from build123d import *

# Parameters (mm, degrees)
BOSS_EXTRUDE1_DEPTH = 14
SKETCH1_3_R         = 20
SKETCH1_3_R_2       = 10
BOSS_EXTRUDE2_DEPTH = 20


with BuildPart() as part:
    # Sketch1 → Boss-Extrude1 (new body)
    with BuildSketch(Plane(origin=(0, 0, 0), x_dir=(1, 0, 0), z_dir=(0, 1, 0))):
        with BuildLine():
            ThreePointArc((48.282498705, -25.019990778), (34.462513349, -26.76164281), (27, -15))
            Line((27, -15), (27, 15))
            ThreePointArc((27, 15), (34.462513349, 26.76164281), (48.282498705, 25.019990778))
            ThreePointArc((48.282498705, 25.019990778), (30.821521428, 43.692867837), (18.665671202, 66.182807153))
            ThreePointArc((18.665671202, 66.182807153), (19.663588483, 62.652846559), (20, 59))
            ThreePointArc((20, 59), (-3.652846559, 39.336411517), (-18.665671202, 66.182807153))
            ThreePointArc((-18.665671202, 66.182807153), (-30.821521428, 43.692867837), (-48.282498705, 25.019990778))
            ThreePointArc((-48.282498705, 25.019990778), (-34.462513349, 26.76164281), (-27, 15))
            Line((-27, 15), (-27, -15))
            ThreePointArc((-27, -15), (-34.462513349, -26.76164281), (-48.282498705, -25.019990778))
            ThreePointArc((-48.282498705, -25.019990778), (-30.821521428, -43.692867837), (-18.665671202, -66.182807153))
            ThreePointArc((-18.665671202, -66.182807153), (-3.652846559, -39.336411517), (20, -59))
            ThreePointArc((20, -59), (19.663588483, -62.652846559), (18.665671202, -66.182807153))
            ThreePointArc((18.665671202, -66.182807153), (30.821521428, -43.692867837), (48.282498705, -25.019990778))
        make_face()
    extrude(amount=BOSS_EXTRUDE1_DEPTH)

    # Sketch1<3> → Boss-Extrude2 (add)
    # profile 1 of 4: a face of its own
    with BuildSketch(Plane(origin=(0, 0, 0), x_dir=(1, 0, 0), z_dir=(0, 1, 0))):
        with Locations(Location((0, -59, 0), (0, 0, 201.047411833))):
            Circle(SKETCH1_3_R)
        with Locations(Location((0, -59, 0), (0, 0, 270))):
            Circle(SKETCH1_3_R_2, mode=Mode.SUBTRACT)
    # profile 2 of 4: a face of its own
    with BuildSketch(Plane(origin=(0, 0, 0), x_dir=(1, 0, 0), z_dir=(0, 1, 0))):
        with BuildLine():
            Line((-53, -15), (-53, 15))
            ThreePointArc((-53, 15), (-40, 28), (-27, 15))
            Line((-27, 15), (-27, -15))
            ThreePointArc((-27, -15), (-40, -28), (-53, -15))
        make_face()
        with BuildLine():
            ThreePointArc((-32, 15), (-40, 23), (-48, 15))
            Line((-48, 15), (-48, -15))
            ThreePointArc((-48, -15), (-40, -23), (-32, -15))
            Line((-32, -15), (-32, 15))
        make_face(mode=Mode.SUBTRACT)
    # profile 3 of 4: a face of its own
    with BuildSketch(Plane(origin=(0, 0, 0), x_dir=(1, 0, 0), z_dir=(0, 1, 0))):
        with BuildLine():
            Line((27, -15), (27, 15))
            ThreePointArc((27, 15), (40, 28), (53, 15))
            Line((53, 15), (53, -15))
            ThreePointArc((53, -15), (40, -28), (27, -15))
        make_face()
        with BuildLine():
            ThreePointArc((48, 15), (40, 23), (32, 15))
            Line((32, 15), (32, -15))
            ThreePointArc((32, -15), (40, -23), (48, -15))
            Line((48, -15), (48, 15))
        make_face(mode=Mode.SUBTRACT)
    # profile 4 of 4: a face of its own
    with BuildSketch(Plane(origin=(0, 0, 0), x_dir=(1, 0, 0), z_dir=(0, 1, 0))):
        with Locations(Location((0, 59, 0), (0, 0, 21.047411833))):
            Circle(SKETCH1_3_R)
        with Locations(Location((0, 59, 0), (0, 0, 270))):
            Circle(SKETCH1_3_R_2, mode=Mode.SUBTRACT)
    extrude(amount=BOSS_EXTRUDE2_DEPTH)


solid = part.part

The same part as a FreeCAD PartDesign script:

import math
import FreeCAD as App
import Part
import Sketcher
from FreeCAD import Vector

doc = App.newDocument("Part")
body = doc.addObject("PartDesign::Body", "Body")

# Sketch on XZ plane
sketch1 = doc.addObject("Sketcher::SketchObject", "Sketch")
body.addObject(sketch1)
sketch1.AttachmentSupport = (doc.XZ_Plane, [""])
sketch1.MapMode = "FlatFace"
sketch1.addGeometry([
    Part.ArcOfCircle(Part.Circle(Vector(40, 15, 0), Vector(0, 0, 1), 13), math.radians(50), math.radians(180)),  # 0
    Part.LineSegment(Vector(27, 15, 0), Vector(27, -15, 0)),  # 1
    Part.ArcOfCircle(Part.Circle(Vector(40, -15, 0), Vector(0, 0, 1), 13), math.radians(180), math.radians(310)),  # 2
    Part.ArcOfCircle(Part.Circle(Vector(112, -102, 0), Vector(0, 0, 1), 100), math.radians(130), math.radians(159)),  # 3
    Part.ArcOfCircle(Part.Circle(Vector(0, -59, 0), Vector(0, 0, 1), 20), math.radians(-21), math.radians(0)),  # 4
    Part.ArcOfCircle(Part.Circle(Vector(0, -59, 0), Vector(0, 0, 1), 20), math.radians(0), math.radians(201)),  # 5
    Part.ArcOfCircle(Part.Circle(Vector(-112, -102, 0), Vector(0, 0, 1), 100), math.radians(21), math.radians(50)),  # 6
    Part.ArcOfCircle(Part.Circle(Vector(-40, -15, 0), Vector(0, 0, 1), 13), math.radians(-130), math.radians(0)),  # 7
    Part.LineSegment(Vector(-27, -15, 0), Vector(-27, 15, 0)),  # 8
    Part.ArcOfCircle(Part.Circle(Vector(-40, 15, 0), Vector(0, 0, 1), 13), math.radians(0), math.radians(130)),  # 9
    Part.ArcOfCircle(Part.Circle(Vector(-112, 102, 0), Vector(0, 0, 1), 100), math.radians(-50), math.radians(-21)),  # 10
    Part.ArcOfCircle(Part.Circle(Vector(0, 59, 0), Vector(0, 0, 1), 20), math.radians(159), math.radians(360)),  # 11
    Part.ArcOfCircle(Part.Circle(Vector(0, 59, 0), Vector(0, 0, 1), 20), math.radians(0), math.radians(21)),  # 12
    Part.ArcOfCircle(Part.Circle(Vector(112, 102, 0), Vector(0, 0, 1), 100), math.radians(-159), math.radians(-130)),  # 13
], False)
sketch1.addConstraint([
    Sketcher.Constraint("Tangent", 0, 2, 1, 1),
    Sketcher.Constraint("Tangent", 1, 2, 2, 1),
    Sketcher.Constraint("Tangent", 2, 2, 3, 1),
    Sketcher.Constraint("Tangent", 3, 2, 4, 1),
    Sketcher.Constraint("Tangent", 4, 2, 5, 1),
    Sketcher.Constraint("Tangent", 5, 2, 6, 1),
    Sketcher.Constraint("Tangent", 6, 2, 7, 1),
    Sketcher.Constraint("Tangent", 7, 2, 8, 1),
    Sketcher.Constraint("Tangent", 8, 2, 9, 1),
    Sketcher.Constraint("Tangent", 9, 2, 10, 1),
    Sketcher.Constraint("Tangent", 10, 2, 11, 1),
    Sketcher.Constraint("Tangent", 11, 2, 12, 1),
    Sketcher.Constraint("Tangent", 12, 2, 13, 1),
    Sketcher.Constraint("Tangent", 13, 2, 0, 1),
    Sketcher.Constraint("Vertical", 1),
    Sketcher.Constraint("Vertical", 8),
    Sketcher.Constraint("Equal", 0, 2),
    Sketcher.Constraint("Equal", 4, 5),
    Sketcher.Constraint("Equal", 3, 6),
    Sketcher.Constraint("Equal", 2, 7),
    Sketcher.Constraint("Equal", 7, 9),
    Sketcher.Constraint("Equal", 6, 10),
    Sketcher.Constraint("Equal", 5, 11),
    Sketcher.Constraint("Equal", 11, 12),
    Sketcher.Constraint("Equal", 10, 13),
    Sketcher.Constraint("Symmetric", 0, 3, 7, 3, -1, 1),
    Sketcher.Constraint("Symmetric", 3, 3, 10, 3, -1, 1),
    Sketcher.Constraint("Symmetric", 3, 3, 6, 3, -2),
    Sketcher.Constraint("Symmetric", 4, 2, 11, 2, -1),
    Sketcher.Constraint("Horizontal", 5, 3, 4, 2),
    Sketcher.Constraint("Radius", 0, 13.0),
    Sketcher.Constraint("Radius", 3, 100.0),
    Sketcher.Constraint("Radius", 4, 20.0),
    Sketcher.Constraint("DistanceY", 1, 2, 1, 1, 30.0),
    Sketcher.Constraint("DistanceX", -1, 1, 0, 3, 40.0),
    Sketcher.Constraint("DistanceY", 4, 3, -1, 1, 59.0),
])
pad1 = doc.addObject("PartDesign::Pad", "Pad")
body.addObject(pad1)
pad1.Profile = sketch1
pad1.Length = 14
pad1.Reversed = True

# Sketch on XZ plane
sketch2 = doc.addObject("Sketcher::SketchObject", "Sketch001")
body.addObject(sketch2)
sketch2.AttachmentSupport = (doc.XZ_Plane, [""])
sketch2.MapMode = "FlatFace"
sketch2.addGeometry([
    Part.Circle(Vector(0, 59, 0), Vector(0, 0, 1), 20),  # 0
    Part.Circle(Vector(0, 59, 0), Vector(0, 0, 1), 10),  # 1
    Part.LineSegment(Vector(-53, -15, 0), Vector(-53, 15, 0)),  # 2
    Part.ArcOfCircle(Part.Circle(Vector(-40, 15, 0), Vector(0, 0, 1), 13), math.radians(0), math.radians(180)),  # 3
    Part.LineSegment(Vector(-27, 15, 0), Vector(-27, -15, 0)),  # 4
    Part.ArcOfCircle(Part.Circle(Vector(-40, -15, 0), Vector(0, 0, 1), 13), math.radians(180), math.radians(360)),  # 5
    Part.LineSegment(Vector(-32, -15, 0), Vector(-32, 15, 0)),  # 6
    Part.ArcOfCircle(Part.Circle(Vector(-40, 15, 0), Vector(0, 0, 1), 8), math.radians(0), math.radians(180)),  # 7
    Part.LineSegment(Vector(-48, 15, 0), Vector(-48, -15, 0)),  # 8
    Part.ArcOfCircle(Part.Circle(Vector(-40, -15, 0), Vector(0, 0, 1), 8), math.radians(180), math.radians(360)),  # 9
    Part.LineSegment(Vector(27, -15, 0), Vector(27, 15, 0)),  # 10
    Part.ArcOfCircle(Part.Circle(Vector(40, 15, 0), Vector(0, 0, 1), 13), math.radians(0), math.radians(180)),  # 11
    Part.LineSegment(Vector(53, 15, 0), Vector(53, -15, 0)),  # 12
    Part.ArcOfCircle(Part.Circle(Vector(40, -15, 0), Vector(0, 0, 1), 13), math.radians(180), math.radians(360)),  # 13
    Part.LineSegment(Vector(48, -15, 0), Vector(48, 15, 0)),  # 14
    Part.ArcOfCircle(Part.Circle(Vector(40, 15, 0), Vector(0, 0, 1), 8), math.radians(0), math.radians(180)),  # 15
    Part.LineSegment(Vector(32, 15, 0), Vector(32, -15, 0)),  # 16
    Part.ArcOfCircle(Part.Circle(Vector(40, -15, 0), Vector(0, 0, 1), 8), math.radians(180), math.radians(360)),  # 17
    Part.Circle(Vector(0, -59, 0), Vector(0, 0, 1), 20),  # 18
    Part.Circle(Vector(0, -59, 0), Vector(0, 0, 1), 10),  # 19
], False)
sketch2.addConstraint([
    Sketcher.Constraint("Tangent", 2, 2, 3, 2),
    Sketcher.Constraint("Tangent", 3, 1, 4, 1),
    Sketcher.Constraint("Tangent", 4, 2, 5, 2),
    Sketcher.Constraint("Tangent", 5, 1, 2, 1),
    Sketcher.Constraint("Tangent", 6, 2, 7, 1),
    Sketcher.Constraint("Tangent", 7, 2, 8, 1),
    Sketcher.Constraint("Tangent", 8, 2, 9, 1),
    Sketcher.Constraint("Tangent", 9, 2, 6, 1),
    Sketcher.Constraint("Tangent", 10, 2, 11, 2),
    Sketcher.Constraint("Tangent", 11, 1, 12, 1),
    Sketcher.Constraint("Tangent", 12, 2, 13, 2),
    Sketcher.Constraint("Tangent", 13, 1, 10, 1),
    Sketcher.Constraint("Tangent", 14, 2, 15, 1),
    Sketcher.Constraint("Tangent", 15, 2, 16, 1),
    Sketcher.Constraint("Tangent", 16, 2, 17, 1),
    Sketcher.Constraint("Tangent", 17, 2, 14, 1),
    Sketcher.Constraint("Vertical", 2),
    Sketcher.Constraint("Vertical", 4),
    Sketcher.Constraint("Vertical", 6),
    Sketcher.Constraint("Vertical", 8),
    Sketcher.Constraint("Vertical", 10),
    Sketcher.Constraint("Vertical", 12),
    Sketcher.Constraint("Vertical", 14),
    Sketcher.Constraint("Vertical", 16),
    Sketcher.Constraint("Coincident", 1, 3, 0, 3),
    Sketcher.Constraint("Coincident", 7, 3, 3, 3),
    Sketcher.Constraint("Coincident", 15, 3, 11, 3),
    Sketcher.Constraint("Coincident", 19, 3, 18, 3),
    Sketcher.Constraint("Equal", 5, 11),
    Sketcher.Constraint("Equal", 9, 15),
    Sketcher.Constraint("Equal", 0, 18),
    Sketcher.Constraint("Equal", 1, 19),
    Sketcher.Constraint("Symmetric", 5, 3, 11, 3, -1, 1),
    Sketcher.Constraint("Symmetric", 0, 3, 18, 3, -1, 1),
    Sketcher.Constraint("PointOnObject", 0, 3, -2),
    Sketcher.Constraint("Horizontal", 7, 3, 11, 3),
    Sketcher.Constraint("Horizontal", 9, 3, 13, 3),
    Sketcher.Constraint("Horizontal", 9, 3, 17, 3),
    Sketcher.Constraint("Horizontal", 17, 3, 4, 2),
    Sketcher.Constraint("Diameter", 0, 40.0),
    Sketcher.Constraint("Diameter", 1, 20.0),
    Sketcher.Constraint("Radius", 3, 13.0),
    Sketcher.Constraint("Radius", 7, 8.0),
    Sketcher.Constraint("DistanceY", 2, 1, 2, 2, 30.0),
    Sketcher.Constraint("DistanceY", -1, 1, 0, 3, 59.0),
    Sketcher.Constraint("DistanceX", 3, 3, -1, 1, 40.0),
])
pad2 = doc.addObject("PartDesign::Pad", "Pad001")
body.addObject(pad2)
pad2.Profile = sketch2
pad2.Length = 20
pad2.Reversed = True

doc.recompute()
